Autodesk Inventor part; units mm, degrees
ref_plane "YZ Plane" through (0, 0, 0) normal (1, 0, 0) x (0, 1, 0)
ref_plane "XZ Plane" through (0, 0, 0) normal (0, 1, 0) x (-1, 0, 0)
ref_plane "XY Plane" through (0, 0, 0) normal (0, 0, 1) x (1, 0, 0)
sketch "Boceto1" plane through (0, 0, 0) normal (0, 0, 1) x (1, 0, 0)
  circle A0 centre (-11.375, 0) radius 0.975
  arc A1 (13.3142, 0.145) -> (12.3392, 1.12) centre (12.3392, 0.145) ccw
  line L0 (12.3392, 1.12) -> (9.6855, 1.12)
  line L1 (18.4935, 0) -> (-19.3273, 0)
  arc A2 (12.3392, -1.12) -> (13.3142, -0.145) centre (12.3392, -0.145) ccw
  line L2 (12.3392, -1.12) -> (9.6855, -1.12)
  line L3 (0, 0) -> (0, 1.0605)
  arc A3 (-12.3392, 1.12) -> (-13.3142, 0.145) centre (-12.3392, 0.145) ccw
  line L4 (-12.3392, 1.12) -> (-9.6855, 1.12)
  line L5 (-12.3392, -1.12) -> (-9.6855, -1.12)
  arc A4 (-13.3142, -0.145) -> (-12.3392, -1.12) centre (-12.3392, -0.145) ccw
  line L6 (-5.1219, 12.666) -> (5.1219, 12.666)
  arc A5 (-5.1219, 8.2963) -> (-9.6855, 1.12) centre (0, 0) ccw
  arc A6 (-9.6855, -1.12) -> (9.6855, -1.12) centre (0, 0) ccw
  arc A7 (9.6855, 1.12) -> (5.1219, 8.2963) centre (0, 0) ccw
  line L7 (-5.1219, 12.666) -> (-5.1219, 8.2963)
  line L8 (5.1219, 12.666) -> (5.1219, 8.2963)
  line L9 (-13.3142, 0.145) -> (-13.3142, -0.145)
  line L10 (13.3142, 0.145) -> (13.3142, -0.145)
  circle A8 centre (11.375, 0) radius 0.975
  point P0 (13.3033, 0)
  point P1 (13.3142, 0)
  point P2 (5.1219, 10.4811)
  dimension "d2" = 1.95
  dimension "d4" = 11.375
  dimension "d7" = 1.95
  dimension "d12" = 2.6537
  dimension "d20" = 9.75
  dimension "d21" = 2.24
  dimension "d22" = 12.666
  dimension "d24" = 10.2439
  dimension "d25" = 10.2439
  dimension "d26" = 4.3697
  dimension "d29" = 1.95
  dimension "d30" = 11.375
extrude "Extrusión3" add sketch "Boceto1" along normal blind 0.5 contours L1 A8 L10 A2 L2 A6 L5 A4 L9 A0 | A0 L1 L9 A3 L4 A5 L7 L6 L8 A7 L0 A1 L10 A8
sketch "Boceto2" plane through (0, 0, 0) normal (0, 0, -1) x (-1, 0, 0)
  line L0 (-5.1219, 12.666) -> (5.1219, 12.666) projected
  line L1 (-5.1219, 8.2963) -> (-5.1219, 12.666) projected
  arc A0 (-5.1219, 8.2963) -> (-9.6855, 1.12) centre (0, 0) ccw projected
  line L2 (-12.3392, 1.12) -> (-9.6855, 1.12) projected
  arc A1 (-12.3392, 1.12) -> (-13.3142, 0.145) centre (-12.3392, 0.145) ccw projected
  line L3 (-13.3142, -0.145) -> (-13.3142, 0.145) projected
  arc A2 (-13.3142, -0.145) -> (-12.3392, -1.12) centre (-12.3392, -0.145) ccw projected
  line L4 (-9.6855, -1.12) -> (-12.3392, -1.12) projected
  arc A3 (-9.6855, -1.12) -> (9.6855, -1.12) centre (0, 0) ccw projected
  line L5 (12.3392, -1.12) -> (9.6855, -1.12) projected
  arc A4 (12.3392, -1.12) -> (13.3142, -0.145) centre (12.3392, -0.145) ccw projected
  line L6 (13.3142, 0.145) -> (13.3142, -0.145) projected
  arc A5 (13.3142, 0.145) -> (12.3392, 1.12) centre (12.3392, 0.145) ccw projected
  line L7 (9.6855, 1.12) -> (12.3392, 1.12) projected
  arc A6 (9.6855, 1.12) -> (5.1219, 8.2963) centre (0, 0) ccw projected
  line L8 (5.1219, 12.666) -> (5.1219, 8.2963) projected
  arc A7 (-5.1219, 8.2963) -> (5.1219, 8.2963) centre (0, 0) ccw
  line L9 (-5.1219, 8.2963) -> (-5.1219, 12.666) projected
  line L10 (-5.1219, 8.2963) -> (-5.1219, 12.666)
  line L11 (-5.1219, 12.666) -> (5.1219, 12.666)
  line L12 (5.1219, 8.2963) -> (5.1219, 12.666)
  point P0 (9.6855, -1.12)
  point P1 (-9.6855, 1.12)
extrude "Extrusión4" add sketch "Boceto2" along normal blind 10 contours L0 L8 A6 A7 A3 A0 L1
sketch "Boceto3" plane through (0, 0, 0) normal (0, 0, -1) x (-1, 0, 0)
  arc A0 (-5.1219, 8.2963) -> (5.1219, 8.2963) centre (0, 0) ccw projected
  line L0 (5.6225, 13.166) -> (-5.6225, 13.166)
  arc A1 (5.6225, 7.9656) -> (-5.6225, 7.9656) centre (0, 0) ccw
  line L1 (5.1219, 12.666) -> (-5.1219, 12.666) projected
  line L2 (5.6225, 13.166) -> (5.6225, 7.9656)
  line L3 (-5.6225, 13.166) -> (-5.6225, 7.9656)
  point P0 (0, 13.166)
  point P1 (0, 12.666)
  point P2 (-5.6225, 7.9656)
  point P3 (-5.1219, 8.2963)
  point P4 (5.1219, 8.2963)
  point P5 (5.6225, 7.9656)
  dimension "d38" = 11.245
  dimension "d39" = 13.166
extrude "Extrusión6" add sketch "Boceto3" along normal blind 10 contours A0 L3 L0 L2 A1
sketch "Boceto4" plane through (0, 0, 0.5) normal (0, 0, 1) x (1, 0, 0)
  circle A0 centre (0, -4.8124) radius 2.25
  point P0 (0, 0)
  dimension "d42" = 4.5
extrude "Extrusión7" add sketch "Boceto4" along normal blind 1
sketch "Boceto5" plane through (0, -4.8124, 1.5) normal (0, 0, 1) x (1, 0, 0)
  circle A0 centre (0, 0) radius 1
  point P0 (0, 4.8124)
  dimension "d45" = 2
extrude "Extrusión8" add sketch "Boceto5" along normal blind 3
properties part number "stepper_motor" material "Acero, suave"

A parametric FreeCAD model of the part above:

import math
import FreeCAD as App
import Part
import Sketcher
from FreeCAD import Vector

doc = App.newDocument("Part")
body = doc.addObject("PartDesign::Body", "Body")

# Sketch on XY plane
sketch1 = body.newObject("Sketcher::SketchObject", "Sketch")
sketch1.AttachmentSupport = (doc.getObject("XY_Plane"), [""])
sketch1.MapMode = "FlatFace"
sketch1.addGeometry([
    Part.LineSegment(Vector(13.31, -0.14, 0), Vector(13.31, 0.14, 0)),  # 0
    Part.ArcOfCircle(Part.Circle(Vector(12.34, 0.14, 0), Vector(0, 0, 1), 0.97), math.radians(0), math.radians(90)),  # 1
    Part.LineSegment(Vector(12.34, 1.12, 0), Vector(9.69, 1.12, 0)),  # 2
    Part.ArcOfCircle(Part.Circle(Vector(0, 0, 0), Vector(0, 0, 1), 9.75), math.radians(7), math.radians(58)),  # 3
    Part.LineSegment(Vector(5.12, 8.3, 0), Vector(5.12, 12.67, 0)),  # 4
    Part.LineSegment(Vector(5.12, 12.67, 0), Vector(-5.12, 12.67, 0)),  # 5
    Part.LineSegment(Vector(-5.12, 12.67, 0), Vector(-5.12, 8.3, 0)),  # 6
    Part.ArcOfCircle(Part.Circle(Vector(0, 0, 0), Vector(0, 0, 1), 9.75), math.radians(122), math.radians(173)),  # 7
    Part.LineSegment(Vector(-9.69, 1.12, 0), Vector(-12.34, 1.12, 0)),  # 8
    Part.ArcOfCircle(Part.Circle(Vector(-12.34, 0.14, 0), Vector(0, 0, 1), 0.98), math.radians(90), math.radians(180)),  # 9
    Part.LineSegment(Vector(-13.31, 0.14, 0), Vector(-13.31, -0.14, 0)),  # 10
    Part.ArcOfCircle(Part.Circle(Vector(-12.34, -0.14, 0), Vector(0, 0, 1), 0.97), math.radians(180), math.radians(270)),  # 11
    Part.LineSegment(Vector(-12.34, -1.12, 0), Vector(-9.69, -1.12, 0)),  # 12
    Part.ArcOfCircle(Part.Circle(Vector(0, 0, 0), Vector(0, 0, 1), 9.75), math.radians(-173), math.radians(-7)),  # 13
    Part.LineSegment(Vector(9.69, -1.12, 0), Vector(12.34, -1.12, 0)),  # 14
    Part.ArcOfCircle(Part.Circle(Vector(12.34, -0.14, 0), Vector(0, 0, 1), 0.98), math.radians(-90), math.radians(0)),  # 15
    Part.Circle(Vector(11.38, 0, 0), Vector(0, 0, 1), 0.97),  # 16
    Part.Circle(Vector(-11.38, 0, 0), Vector(0, 0, 1), 0.97),  # 17
], False)
sketch1.addConstraint([
    Sketcher.Constraint("Tangent", 0, 2, 1, 1),
    Sketcher.Constraint("Tangent", 1, 2, 2, 1),
    Sketcher.Constraint("Coincident", 2, 2, 3, 1),
    Sketcher.Constraint("Coincident", 3, 2, 4, 1),
    Sketcher.Constraint("Coincident", 4, 2, 5, 1),
    Sketcher.Constraint("Coincident", 5, 2, 6, 1),
    Sketcher.Constraint("Coincident", 6, 2, 7, 1),
    Sketcher.Constraint("Coincident", 7, 2, 8, 1),
    Sketcher.Constraint("Tangent", 8, 2, 9, 1),
    Sketcher.Constraint("Tangent", 9, 2, 10, 1),
    Sketcher.Constraint("Tangent", 10, 2, 11, 1),
    Sketcher.Constraint("Tangent", 11, 2, 12, 1),
    Sketcher.Constraint("Coincident", 12, 2, 13, 1),
    Sketcher.Constraint("Coincident", 13, 2, 14, 1),
    Sketcher.Constraint("Tangent", 14, 2, 15, 1),
    Sketcher.Constraint("Tangent", 15, 2, 0, 1),
    Sketcher.Constraint("Vertical", 0),
    Sketcher.Constraint("Horizontal", 2),
    Sketcher.Constraint("Vertical", 4),
    Sketcher.Constraint("Horizontal", 5),
    Sketcher.Constraint("Vertical", 6),
    Sketcher.Constraint("Horizontal", 8),
    Sketcher.Constraint("Vertical", 10),
    Sketcher.Constraint("Horizontal", 12),
    Sketcher.Constraint("Horizontal", 14),
    Sketcher.Constraint("Coincident", 3, 3, -1, 1),
    Sketcher.Constraint("Coincident", 7, 3, -1, 1),
    Sketcher.Constraint("Coincident", 13, 3, -1, 1),
    Sketcher.Constraint("Equal", 3, 7),
    Sketcher.Constraint("Equal", 1, 9),
    Sketcher.Constraint("Equal", 9, 11),
    Sketcher.Constraint("Equal", 7, 13),
    Sketcher.Constraint("Equal", 11, 15),
    Sketcher.Constraint("Equal", 15, 16),
    Sketcher.Constraint("Equal", 16, 17),
    Sketcher.Constraint("Symmetric", 1, 3, 11, 3, -1, 1),
    Sketcher.Constraint("Symmetric", 16, 3, 17, 3, -1, 1),
    Sketcher.Constraint("PointOnObject", 16, 3, -1),
    Sketcher.Constraint("Horizontal", 1, 3, 9, 3),
    Sketcher.Constraint("Horizontal", 11, 3, 15, 3),
    Sketcher.Constraint("Horizontal", 3, 2, 6, 2),
    Sketcher.Constraint("Diameter", 16, 1.95),
    Sketcher.Constraint("Radius", 3, 9.75),
    Sketcher.Constraint("DistanceY", 12, 2, 7, 2, 2.24),
    Sketcher.Constraint("DistanceX", 2, 2, 2, 1, 2.6537),
    Sketcher.Constraint("DistanceX", 5, 2, 5, 1, 10.2438),
    Sketcher.Constraint("DistanceY", 4, 1, 4, 2, 4.3697),
    Sketcher.Constraint("DistanceX", -1, 1, 16, 3, 11.375),
])
pad1 = body.newObject("PartDesign::Pad", "Pad")
pad1.Profile = sketch1
pad1.Length = 0.5

# Sketch on XY plane
sketch2 = body.newObject("Sketcher::SketchObject", "Sketch001")
sketch2.AttachmentSupport = (doc.getObject("XY_Plane"), [""])
sketch2.MapMode = "FlatFace"
sketch2.addGeometry([
    Part.LineSegment(Vector(-5.1, 12.7, 0), Vector(5.1, 12.7, 0)),  # 0
    Part.LineSegment(Vector(5.1, 12.7, 0), Vector(5.1, 8.3, 0)),  # 1
    Part.ArcOfCircle(Part.Circle(Vector(0, 0, 0), Vector(0, 0, 1), 9.8), math.radians(7), math.radians(58)),  # 2
    Part.ArcOfCircle(Part.Circle(Vector(0, 0, 0), Vector(0, 0, 1), 9.7), math.radians(173), math.radians(367)),  # 3
    Part.ArcOfCircle(Part.Circle(Vector(0, 0, 0), Vector(0, 0, 1), 9.7), math.radians(122), math.radians(173)),  # 4
    Part.LineSegment(Vector(-5.1, 8.3, 0), Vector(-5.1, 12.7, 0)),  # 5
], False)
sketch2.addConstraint([
    Sketcher.Constraint("Coincident", 0, 2, 1, 1),
    Sketcher.Constraint("Coincident", 1, 2, 2, 2),
    Sketcher.Constraint("Tangent", 2, 1, 3, 2),
    Sketcher.Constraint("Tangent", 3, 1, 4, 2),
    Sketcher.Constraint("Coincident", 4, 1, 5, 1),
    Sketcher.Constraint("Coincident", 5, 2, 0, 1),
    Sketcher.Constraint("Horizontal", 0),
    Sketcher.Constraint("Vertical", 1),
    Sketcher.Constraint("Vertical", 5),
    Sketcher.Constraint("Coincident", 2, 3, -1, 1),
    Sketcher.Constraint("Coincident", 4, 3, -1, 1),
    Sketcher.Constraint("Horizontal", 2, 1, 3, 1),
    Sketcher.Constraint("Horizontal", 1, 2, 4, 1),
    Sketcher.Constraint("Radius", 2, 9.75),
    Sketcher.Constraint("DistanceY", -1, 1, 2, 1, 1.12),
    Sketcher.Constraint("DistanceX", 0, 1, 0, 2, 10.2438),
    Sketcher.Constraint("DistanceY", 1, 2, 1, 1, 4.3697),
])
pad2 = body.newObject("PartDesign::Pad", "Pad001")
pad2.Profile = sketch2
pad2.Length = 10
pad2.Reversed = True

# Sketch on XY plane
sketch3 = body.newObject("Sketcher::SketchObject", "Sketch002")
sketch3.AttachmentSupport = (doc.getObject("XY_Plane"), [""])
sketch3.MapMode = "FlatFace"
sketch3.addGeometry([
    Part.ArcOfCircle(Part.Circle(Vector(0, 0, 0), Vector(0, 0, 1), 10), math.radians(55), math.radians(125)),
    Part.LineSegment(Vector(-6, 8, 0), Vector(-6, 13, 0)),
    Part.LineSegment(Vector(-6, 13, 0), Vector(6, 13, 0)),
    Part.LineSegment(Vector(6, 13, 0), Vector(6, 8, 0)),
], False)
sketch3.addConstraint([
    Sketcher.Constraint("Coincident", 0, 2, 1, 1),
    Sketcher.Constraint("Coincident", 1, 2, 2, 1),
    Sketcher.Constraint("Coincident", 2, 2, 3, 1),
    Sketcher.Constraint("Coincident", 3, 2, 0, 1),
    Sketcher.Constraint("Vertical", 1),
    Sketcher.Constraint("Horizontal", 2),
    Sketcher.Constraint("Vertical", 3),
    Sketcher.Constraint("Coincident", 0, 3, -1, 1),
    Sketcher.Constraint("Horizontal", 0, 2, 3, 2),
    Sketcher.Constraint("DistanceX", 2, 1, 2, 2, 11.245),
    Sketcher.Constraint("Radius", 0, 9.75),
    Sketcher.Constraint("DistanceY", -1, 1, 1, 2, 13.166),
])
pad3 = body.newObject("PartDesign::Pad", "Pad002")
pad3.Profile = sketch3
pad3.Length = 10
pad3.Reversed = True

# Sketch on XY plane
sketch4 = body.newObject("Sketcher::SketchObject", "Sketch003")
sketch4.AttachmentSupport = (doc.getObject("XY_Plane"), [""])
sketch4.MapMode = "FlatFace"
sketch4.AttachmentOffset = App.Placement(Vector(0, 0, 0.5), App.Rotation())
sketch4.addGeometry(Part.Circle(Vector(0, -4.8, 0), Vector(0, 0, 1), 2.2), False)
sketch4.addConstraint([
    Sketcher.Constraint("PointOnObject", 0, 3, -2),
    Sketcher.Constraint("Diameter", 0, 4.5),
    Sketcher.Constraint("DistanceY", 0, 3, -1, 1, 4.8124),
])
pad4 = body.newObject("PartDesign::Pad", "Pad003")
pad4.Profile = sketch4
pad4.Length = 1

# Sketch on XY plane
sketch5 = body.newObject("Sketcher::SketchObject", "Sketch004")
sketch5.AttachmentSupport = (doc.getObject("XY_Plane"), [""])
sketch5.MapMode = "FlatFace"
sketch5.AttachmentOffset = App.Placement(Vector(0, 0, 1.5), App.Rotation())
sketch5.addGeometry(Part.Circle(Vector(0, -4.8, 0), Vector(0, 0, 1), 1), False)
sketch5.addConstraint([
    Sketcher.Constraint("PointOnObject", 0, 3, -2),
    Sketcher.Constraint("Diameter", 0, 2.0),
    Sketcher.Constraint("DistanceY", 0, 3, -1, 1, 4.8124),
])
pad5 = body.newObject("PartDesign::Pad", "Pad004")
pad5.Profile = sketch5
pad5.Length = 3

doc.recompute()
